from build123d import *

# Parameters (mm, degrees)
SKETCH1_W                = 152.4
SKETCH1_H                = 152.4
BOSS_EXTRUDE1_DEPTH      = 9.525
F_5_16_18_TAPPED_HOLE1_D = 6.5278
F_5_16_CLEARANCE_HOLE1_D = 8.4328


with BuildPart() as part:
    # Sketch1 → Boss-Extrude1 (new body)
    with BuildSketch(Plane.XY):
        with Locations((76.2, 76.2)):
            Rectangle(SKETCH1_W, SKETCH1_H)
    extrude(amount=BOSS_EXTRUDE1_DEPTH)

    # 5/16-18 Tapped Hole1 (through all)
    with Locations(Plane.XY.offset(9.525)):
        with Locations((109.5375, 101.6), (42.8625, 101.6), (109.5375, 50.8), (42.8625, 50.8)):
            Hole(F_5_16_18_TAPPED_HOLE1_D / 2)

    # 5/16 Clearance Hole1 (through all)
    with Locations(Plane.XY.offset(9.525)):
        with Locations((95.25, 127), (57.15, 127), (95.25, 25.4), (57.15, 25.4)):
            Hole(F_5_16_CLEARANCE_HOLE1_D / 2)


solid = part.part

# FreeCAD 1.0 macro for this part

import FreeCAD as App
import Part
import Sketcher
from FreeCAD import Vector
Q = App.Units.Quantity

doc = App.newDocument("Part")
body = doc.addObject("PartDesign::Body", "Body")

sketch1 = body.newObject("Sketcher::SketchObject", "Sketch")
sketch1.AttachmentSupport = (doc.getObject("XY_Plane"), [""])
sketch1.MapMode = "FlatFace"
sketch1.addGeometry([
    Part.LineSegment(Vector(0, 152, 0), Vector(0, 0, 0)),
    Part.LineSegment(Vector(0, 0, 0), Vector(152, 0, 0)),
    Part.LineSegment(Vector(152, 0, 0), Vector(152, 152, 0)),
    Part.LineSegment(Vector(152, 152, 0), Vector(0, 152, 0)),
], False)
sketch1.addConstraint([
    Sketcher.Constraint("Coincident", 0, 2, 1, 1),
    Sketcher.Constraint("Coincident", 1, 2, 2, 1),
    Sketcher.Constraint("Coincident", 2, 2, 3, 1),
    Sketcher.Constraint("Coincident", 3, 2, 0, 1),
    Sketcher.Constraint("Vertical", 0),
    Sketcher.Constraint("Horizontal", 1),
    Sketcher.Constraint("Vertical", 2),
    Sketcher.Constraint("Horizontal", 3),
    Sketcher.Constraint("Coincident", 0, 2, -1, 1),
    Sketcher.Constraint("Equal", 3, 0),
    Sketcher.Constraint("DistanceX", 1, 1, 1, 2, Q("6 in")),
])
pad1 = body.newObject("PartDesign::Pad", "Pad")
pad1.Profile = sketch1
pad1.Length = Q("0.375 in")

sketch2 = body.newObject("Sketcher::SketchObject", "Sketch001")
sketch2.AttachmentSupport = (doc.getObject("XY_Plane"), [""])
sketch2.MapMode = "FlatFace"
sketch2.AttachmentOffset = App.Placement(Vector(0, 0, 0.375 * 25.4), App.Rotation())
sketch2.addGeometry([
    Part.Circle(Vector(109.5, 101.6, 0), Vector(0, 0, 1), 3.3),
    Part.Circle(Vector(42.9, 101.6, 0), Vector(0, 0, 1), 3.3),
    Part.Circle(Vector(109.5, 50.8, 0), Vector(0, 0, 1), 3.3),
    Part.Circle(Vector(42.9, 50.8, 0), Vector(0, 0, 1), 3.3),
], False)
sketch2.addConstraint([
    Sketcher.Constraint("Equal", 0, 1),
    Sketcher.Constraint("Equal", 1, 2),
    Sketcher.Constraint("Equal", 2, 3),
    Sketcher.Constraint("Horizontal", 0, 3, 1, 3),
    Sketcher.Constraint("Horizontal", 2, 3, 3, 3),
    Sketcher.Constraint("Vertical", 0, 3, 2, 3),
    Sketcher.Constraint("Vertical", 1, 3, 3, 3),
    Sketcher.Constraint("Diameter", 0, Q("0.257 in")),
    Sketcher.Constraint("DistanceY", -1, 1, 0, 3, Q("4 in")),
    Sketcher.Constraint("DistanceY", -1, 1, 2, 3, Q("2 in")),
    Sketcher.Constraint("DistanceX", -1, 1, 0, 3, Q("4.3125 in")),
    Sketcher.Constraint("DistanceX", -1, 1, 1, 3, Q("1.6875 in")),
])
doc.recompute()
hole = body.newObject("PartDesign::Hole", "Hole")
hole.Profile = sketch2
hole.ThreadType = "None"
hole.Diameter = Q("0.257 in")
hole.DepthType = "ThroughAll"

sketch3 = body.newObject("Sketcher::SketchObject", "Sketch002")
sketch3.AttachmentSupport = (doc.getObject("XY_Plane"), [""])
sketch3.MapMode = "FlatFace"
sketch3.AttachmentOffset = App.Placement(Vector(0, 0, 0.375 * 25.4), App.Rotation())
sketch3.addGeometry([
    Part.Circle(Vector(95.2, 127, 0), Vector(0, 0, 1), 4.2),
    Part.Circle(Vector(57.1, 127, 0), Vector(0, 0, 1), 4.2),
    Part.Circle(Vector(95.2, 25.4, 0), Vector(0, 0, 1), 4.2),
    Part.Circle(Vector(57.1, 25.4, 0), Vector(0, 0, 1), 4.2),
], False)
sketch3.addConstraint([
    Sketcher.Constraint("Equal", 0, 1),
    Sketcher.Constraint("Equal", 1, 2),
    Sketcher.Constraint("Equal", 2, 3),
    Sketcher.Constraint("Horizontal", 0, 3, 1, 3),
    Sketcher.Constraint("Horizontal", 2, 3, 3, 3),
    Sketcher.Constraint("Vertical", 0, 3, 2, 3),
    Sketcher.Constraint("Vertical", 1, 3, 3, 3),
    Sketcher.Constraint("Diameter", 0, Q("0.332 in")),
    Sketcher.Constraint("DistanceY", -1, 1, 0, 3, Q("5 in")),
    Sketcher.Constraint("DistanceY", -1, 1, 2, 3, Q("1 in")),
    Sketcher.Constraint("DistanceX", 1, 3, 0, 3, Q("1.5 in")),
    Sketcher.Constraint("DistanceX", -1, 1, 0, 3, Q("3.75 in")),
])
doc.recompute()
hole2 = body.newObject("PartDesign::Hole", "Hole001")
hole2.Profile = sketch3
hole2.ThreadType = "None"
hole2.Diameter = Q("0.332 in")
hole2.DepthType = "ThroughAll"

doc.recompute()
